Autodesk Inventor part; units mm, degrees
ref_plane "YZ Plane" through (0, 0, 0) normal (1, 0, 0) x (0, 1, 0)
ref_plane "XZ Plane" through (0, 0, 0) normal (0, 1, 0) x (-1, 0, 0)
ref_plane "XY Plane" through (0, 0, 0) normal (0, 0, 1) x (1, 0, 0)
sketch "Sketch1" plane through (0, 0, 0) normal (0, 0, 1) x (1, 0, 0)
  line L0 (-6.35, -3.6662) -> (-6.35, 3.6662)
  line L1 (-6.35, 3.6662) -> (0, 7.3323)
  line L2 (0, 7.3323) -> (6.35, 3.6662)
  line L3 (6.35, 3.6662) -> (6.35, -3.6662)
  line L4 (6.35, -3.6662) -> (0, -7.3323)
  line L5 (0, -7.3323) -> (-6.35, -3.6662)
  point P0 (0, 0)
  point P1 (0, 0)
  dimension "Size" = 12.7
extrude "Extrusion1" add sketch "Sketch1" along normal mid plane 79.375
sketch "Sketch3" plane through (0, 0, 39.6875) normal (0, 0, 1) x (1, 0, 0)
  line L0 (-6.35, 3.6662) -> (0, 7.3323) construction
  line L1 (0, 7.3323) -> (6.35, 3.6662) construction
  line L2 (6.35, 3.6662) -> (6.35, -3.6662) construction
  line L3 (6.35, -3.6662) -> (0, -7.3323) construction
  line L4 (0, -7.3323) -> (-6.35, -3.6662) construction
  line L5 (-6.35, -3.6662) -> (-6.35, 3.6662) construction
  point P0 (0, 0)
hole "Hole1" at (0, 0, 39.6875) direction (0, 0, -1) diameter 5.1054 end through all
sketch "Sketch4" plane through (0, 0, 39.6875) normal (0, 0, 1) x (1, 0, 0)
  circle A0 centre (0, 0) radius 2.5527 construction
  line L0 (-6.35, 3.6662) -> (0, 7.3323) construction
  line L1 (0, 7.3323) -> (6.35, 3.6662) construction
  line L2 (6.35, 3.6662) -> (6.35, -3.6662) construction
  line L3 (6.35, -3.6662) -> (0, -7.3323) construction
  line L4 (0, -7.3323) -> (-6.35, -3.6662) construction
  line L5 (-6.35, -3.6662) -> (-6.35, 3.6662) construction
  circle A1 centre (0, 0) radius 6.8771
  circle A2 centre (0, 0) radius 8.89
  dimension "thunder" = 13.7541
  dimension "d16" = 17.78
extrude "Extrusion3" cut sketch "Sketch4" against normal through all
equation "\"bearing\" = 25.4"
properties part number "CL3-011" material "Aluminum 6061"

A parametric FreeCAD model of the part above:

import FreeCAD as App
import Part
import Sketcher
Q = App.Units.Quantity

doc = App.newDocument("Part")
body = doc.addObject("PartDesign::Body", "Body")

# Sketch on XY plane
sketch1 = body.newObject("Sketcher::SketchObject", "Sketch")
sketch1.AttachmentSupport = (doc.getObject("XY_Plane"), [""])
sketch1.MapMode = "FlatFace"
sketch1.addGeometry(Part.LineSegment(App.Vector(-6, 4, 0), App.Vector(-6, -4, 0)), False)
sketch1.addGeometry(Part.LineSegment(App.Vector(-6, -4, 0), App.Vector(0, -7, 0)), False)
sketch1.addGeometry(Part.LineSegment(App.Vector(0, -7, 0), App.Vector(6, -4, 0)), False)
sketch1.addGeometry(Part.LineSegment(App.Vector(6, -4, 0), App.Vector(6, 4, 0)), False)
sketch1.addGeometry(Part.LineSegment(App.Vector(6, 4, 0), App.Vector(0, 7, 0)), False)
sketch1.addGeometry(Part.LineSegment(App.Vector(0, 7, 0), App.Vector(-6, 4, 0)), False)
sketch1.addConstraint(Sketcher.Constraint("Coincident", 0, 2, 1, 1))
sketch1.addConstraint(Sketcher.Constraint("Coincident", 1, 2, 2, 1))
sketch1.addConstraint(Sketcher.Constraint("Coincident", 2, 2, 3, 1))
sketch1.addConstraint(Sketcher.Constraint("Coincident", 3, 2, 4, 1))
sketch1.addConstraint(Sketcher.Constraint("Coincident", 4, 2, 5, 1))
sketch1.addConstraint(Sketcher.Constraint("Coincident", 5, 2, 0, 1))
sketch1.addConstraint(Sketcher.Constraint("Vertical", 0))
sketch1.addConstraint(Sketcher.Constraint("Vertical", 3))
sketch1.addConstraint(Sketcher.Constraint("Symmetric", 0, 2, 3, 2, -1, 1))
sketch1.addConstraint(Sketcher.Constraint("Symmetric", 1, 2, 4, 2, -1, 1))
sketch1.addConstraint(Sketcher.Constraint("PointOnObject", 1, 2, -2))
sketch1.addConstraint(Sketcher.Constraint("Parallel", 2, 5))
sketch1.addConstraint(Sketcher.Constraint("Horizontal", 0, 2, 2, 2))
sketch1.addConstraint(Sketcher.Constraint("DistanceX", 0, 2, 2, 2, Q("0.5 in")))
sketch1.addConstraint(Sketcher.Constraint("Angle", 1, Q("-29.9995 deg")))
sketch1.addConstraint(Sketcher.Constraint("DistanceY", 1, 2, 3, 2, Q("0.433 in")))
pad1 = body.newObject("PartDesign::Pad", "Pad")
pad1.Profile = sketch1
pad1.Length = Q("3.125 in")
pad1.Midplane = True

# Sketch on XY plane
sketch2 = body.newObject("Sketcher::SketchObject", "Sketch001")
sketch2.AttachmentSupport = (doc.getObject("XY_Plane"), [""])
sketch2.MapMode = "FlatFace"
sketch2.AttachmentOffset = App.Placement(App.Vector(0, 0, 1.5625 * 25.4), App.Rotation())
sketch2.addGeometry(Part.Circle(App.Vector(0, 0, 0), App.Vector(0, 0, 1), 2.6), False)
sketch2.addConstraint(Sketcher.Constraint("Coincident", 0, 3, -1, 1))
sketch2.addConstraint(Sketcher.Constraint("Diameter", 0, Q("0.201 in")))
doc.recompute()
hole = body.newObject("PartDesign::Hole", "Hole")
hole.Profile = sketch2
hole.ThreadType = "None"
hole.Diameter = Q("0.201 in")
hole.DepthType = "ThroughAll"

# Sketch on XY plane
sketch3 = body.newObject("Sketcher::SketchObject", "Sketch002")
sketch3.AttachmentSupport = (doc.getObject("XY_Plane"), [""])
sketch3.MapMode = "FlatFace"
sketch3.AttachmentOffset = App.Placement(App.Vector(0, 0, 1.5625 * 25.4), App.Rotation())
sketch3.addGeometry(Part.Circle(App.Vector(0, 0, 0), App.Vector(0, 0, 1), 9), False)
sketch3.addGeometry(Part.Circle(App.Vector(0, 0, 0), App.Vector(0, 0, 1), 7), False)
sketch3.addConstraint(Sketcher.Constraint("Coincident", 0, 3, -1, 1))
sketch3.addConstraint(Sketcher.Constraint("Coincident", 1, 3, -1, 1))
sketch3.addConstraint(Sketcher.Constraint("Diameter", 0, Q("0.7 in")))
sketch3.addConstraint(Sketcher.Constraint("Diameter", 1, Q("0.5415 in")))
pocket1 = body.newObject("PartDesign::Pocket", "Pocket")
pocket1.Profile = sketch3
pocket1.Type = "ThroughAll"

doc.recompute()
